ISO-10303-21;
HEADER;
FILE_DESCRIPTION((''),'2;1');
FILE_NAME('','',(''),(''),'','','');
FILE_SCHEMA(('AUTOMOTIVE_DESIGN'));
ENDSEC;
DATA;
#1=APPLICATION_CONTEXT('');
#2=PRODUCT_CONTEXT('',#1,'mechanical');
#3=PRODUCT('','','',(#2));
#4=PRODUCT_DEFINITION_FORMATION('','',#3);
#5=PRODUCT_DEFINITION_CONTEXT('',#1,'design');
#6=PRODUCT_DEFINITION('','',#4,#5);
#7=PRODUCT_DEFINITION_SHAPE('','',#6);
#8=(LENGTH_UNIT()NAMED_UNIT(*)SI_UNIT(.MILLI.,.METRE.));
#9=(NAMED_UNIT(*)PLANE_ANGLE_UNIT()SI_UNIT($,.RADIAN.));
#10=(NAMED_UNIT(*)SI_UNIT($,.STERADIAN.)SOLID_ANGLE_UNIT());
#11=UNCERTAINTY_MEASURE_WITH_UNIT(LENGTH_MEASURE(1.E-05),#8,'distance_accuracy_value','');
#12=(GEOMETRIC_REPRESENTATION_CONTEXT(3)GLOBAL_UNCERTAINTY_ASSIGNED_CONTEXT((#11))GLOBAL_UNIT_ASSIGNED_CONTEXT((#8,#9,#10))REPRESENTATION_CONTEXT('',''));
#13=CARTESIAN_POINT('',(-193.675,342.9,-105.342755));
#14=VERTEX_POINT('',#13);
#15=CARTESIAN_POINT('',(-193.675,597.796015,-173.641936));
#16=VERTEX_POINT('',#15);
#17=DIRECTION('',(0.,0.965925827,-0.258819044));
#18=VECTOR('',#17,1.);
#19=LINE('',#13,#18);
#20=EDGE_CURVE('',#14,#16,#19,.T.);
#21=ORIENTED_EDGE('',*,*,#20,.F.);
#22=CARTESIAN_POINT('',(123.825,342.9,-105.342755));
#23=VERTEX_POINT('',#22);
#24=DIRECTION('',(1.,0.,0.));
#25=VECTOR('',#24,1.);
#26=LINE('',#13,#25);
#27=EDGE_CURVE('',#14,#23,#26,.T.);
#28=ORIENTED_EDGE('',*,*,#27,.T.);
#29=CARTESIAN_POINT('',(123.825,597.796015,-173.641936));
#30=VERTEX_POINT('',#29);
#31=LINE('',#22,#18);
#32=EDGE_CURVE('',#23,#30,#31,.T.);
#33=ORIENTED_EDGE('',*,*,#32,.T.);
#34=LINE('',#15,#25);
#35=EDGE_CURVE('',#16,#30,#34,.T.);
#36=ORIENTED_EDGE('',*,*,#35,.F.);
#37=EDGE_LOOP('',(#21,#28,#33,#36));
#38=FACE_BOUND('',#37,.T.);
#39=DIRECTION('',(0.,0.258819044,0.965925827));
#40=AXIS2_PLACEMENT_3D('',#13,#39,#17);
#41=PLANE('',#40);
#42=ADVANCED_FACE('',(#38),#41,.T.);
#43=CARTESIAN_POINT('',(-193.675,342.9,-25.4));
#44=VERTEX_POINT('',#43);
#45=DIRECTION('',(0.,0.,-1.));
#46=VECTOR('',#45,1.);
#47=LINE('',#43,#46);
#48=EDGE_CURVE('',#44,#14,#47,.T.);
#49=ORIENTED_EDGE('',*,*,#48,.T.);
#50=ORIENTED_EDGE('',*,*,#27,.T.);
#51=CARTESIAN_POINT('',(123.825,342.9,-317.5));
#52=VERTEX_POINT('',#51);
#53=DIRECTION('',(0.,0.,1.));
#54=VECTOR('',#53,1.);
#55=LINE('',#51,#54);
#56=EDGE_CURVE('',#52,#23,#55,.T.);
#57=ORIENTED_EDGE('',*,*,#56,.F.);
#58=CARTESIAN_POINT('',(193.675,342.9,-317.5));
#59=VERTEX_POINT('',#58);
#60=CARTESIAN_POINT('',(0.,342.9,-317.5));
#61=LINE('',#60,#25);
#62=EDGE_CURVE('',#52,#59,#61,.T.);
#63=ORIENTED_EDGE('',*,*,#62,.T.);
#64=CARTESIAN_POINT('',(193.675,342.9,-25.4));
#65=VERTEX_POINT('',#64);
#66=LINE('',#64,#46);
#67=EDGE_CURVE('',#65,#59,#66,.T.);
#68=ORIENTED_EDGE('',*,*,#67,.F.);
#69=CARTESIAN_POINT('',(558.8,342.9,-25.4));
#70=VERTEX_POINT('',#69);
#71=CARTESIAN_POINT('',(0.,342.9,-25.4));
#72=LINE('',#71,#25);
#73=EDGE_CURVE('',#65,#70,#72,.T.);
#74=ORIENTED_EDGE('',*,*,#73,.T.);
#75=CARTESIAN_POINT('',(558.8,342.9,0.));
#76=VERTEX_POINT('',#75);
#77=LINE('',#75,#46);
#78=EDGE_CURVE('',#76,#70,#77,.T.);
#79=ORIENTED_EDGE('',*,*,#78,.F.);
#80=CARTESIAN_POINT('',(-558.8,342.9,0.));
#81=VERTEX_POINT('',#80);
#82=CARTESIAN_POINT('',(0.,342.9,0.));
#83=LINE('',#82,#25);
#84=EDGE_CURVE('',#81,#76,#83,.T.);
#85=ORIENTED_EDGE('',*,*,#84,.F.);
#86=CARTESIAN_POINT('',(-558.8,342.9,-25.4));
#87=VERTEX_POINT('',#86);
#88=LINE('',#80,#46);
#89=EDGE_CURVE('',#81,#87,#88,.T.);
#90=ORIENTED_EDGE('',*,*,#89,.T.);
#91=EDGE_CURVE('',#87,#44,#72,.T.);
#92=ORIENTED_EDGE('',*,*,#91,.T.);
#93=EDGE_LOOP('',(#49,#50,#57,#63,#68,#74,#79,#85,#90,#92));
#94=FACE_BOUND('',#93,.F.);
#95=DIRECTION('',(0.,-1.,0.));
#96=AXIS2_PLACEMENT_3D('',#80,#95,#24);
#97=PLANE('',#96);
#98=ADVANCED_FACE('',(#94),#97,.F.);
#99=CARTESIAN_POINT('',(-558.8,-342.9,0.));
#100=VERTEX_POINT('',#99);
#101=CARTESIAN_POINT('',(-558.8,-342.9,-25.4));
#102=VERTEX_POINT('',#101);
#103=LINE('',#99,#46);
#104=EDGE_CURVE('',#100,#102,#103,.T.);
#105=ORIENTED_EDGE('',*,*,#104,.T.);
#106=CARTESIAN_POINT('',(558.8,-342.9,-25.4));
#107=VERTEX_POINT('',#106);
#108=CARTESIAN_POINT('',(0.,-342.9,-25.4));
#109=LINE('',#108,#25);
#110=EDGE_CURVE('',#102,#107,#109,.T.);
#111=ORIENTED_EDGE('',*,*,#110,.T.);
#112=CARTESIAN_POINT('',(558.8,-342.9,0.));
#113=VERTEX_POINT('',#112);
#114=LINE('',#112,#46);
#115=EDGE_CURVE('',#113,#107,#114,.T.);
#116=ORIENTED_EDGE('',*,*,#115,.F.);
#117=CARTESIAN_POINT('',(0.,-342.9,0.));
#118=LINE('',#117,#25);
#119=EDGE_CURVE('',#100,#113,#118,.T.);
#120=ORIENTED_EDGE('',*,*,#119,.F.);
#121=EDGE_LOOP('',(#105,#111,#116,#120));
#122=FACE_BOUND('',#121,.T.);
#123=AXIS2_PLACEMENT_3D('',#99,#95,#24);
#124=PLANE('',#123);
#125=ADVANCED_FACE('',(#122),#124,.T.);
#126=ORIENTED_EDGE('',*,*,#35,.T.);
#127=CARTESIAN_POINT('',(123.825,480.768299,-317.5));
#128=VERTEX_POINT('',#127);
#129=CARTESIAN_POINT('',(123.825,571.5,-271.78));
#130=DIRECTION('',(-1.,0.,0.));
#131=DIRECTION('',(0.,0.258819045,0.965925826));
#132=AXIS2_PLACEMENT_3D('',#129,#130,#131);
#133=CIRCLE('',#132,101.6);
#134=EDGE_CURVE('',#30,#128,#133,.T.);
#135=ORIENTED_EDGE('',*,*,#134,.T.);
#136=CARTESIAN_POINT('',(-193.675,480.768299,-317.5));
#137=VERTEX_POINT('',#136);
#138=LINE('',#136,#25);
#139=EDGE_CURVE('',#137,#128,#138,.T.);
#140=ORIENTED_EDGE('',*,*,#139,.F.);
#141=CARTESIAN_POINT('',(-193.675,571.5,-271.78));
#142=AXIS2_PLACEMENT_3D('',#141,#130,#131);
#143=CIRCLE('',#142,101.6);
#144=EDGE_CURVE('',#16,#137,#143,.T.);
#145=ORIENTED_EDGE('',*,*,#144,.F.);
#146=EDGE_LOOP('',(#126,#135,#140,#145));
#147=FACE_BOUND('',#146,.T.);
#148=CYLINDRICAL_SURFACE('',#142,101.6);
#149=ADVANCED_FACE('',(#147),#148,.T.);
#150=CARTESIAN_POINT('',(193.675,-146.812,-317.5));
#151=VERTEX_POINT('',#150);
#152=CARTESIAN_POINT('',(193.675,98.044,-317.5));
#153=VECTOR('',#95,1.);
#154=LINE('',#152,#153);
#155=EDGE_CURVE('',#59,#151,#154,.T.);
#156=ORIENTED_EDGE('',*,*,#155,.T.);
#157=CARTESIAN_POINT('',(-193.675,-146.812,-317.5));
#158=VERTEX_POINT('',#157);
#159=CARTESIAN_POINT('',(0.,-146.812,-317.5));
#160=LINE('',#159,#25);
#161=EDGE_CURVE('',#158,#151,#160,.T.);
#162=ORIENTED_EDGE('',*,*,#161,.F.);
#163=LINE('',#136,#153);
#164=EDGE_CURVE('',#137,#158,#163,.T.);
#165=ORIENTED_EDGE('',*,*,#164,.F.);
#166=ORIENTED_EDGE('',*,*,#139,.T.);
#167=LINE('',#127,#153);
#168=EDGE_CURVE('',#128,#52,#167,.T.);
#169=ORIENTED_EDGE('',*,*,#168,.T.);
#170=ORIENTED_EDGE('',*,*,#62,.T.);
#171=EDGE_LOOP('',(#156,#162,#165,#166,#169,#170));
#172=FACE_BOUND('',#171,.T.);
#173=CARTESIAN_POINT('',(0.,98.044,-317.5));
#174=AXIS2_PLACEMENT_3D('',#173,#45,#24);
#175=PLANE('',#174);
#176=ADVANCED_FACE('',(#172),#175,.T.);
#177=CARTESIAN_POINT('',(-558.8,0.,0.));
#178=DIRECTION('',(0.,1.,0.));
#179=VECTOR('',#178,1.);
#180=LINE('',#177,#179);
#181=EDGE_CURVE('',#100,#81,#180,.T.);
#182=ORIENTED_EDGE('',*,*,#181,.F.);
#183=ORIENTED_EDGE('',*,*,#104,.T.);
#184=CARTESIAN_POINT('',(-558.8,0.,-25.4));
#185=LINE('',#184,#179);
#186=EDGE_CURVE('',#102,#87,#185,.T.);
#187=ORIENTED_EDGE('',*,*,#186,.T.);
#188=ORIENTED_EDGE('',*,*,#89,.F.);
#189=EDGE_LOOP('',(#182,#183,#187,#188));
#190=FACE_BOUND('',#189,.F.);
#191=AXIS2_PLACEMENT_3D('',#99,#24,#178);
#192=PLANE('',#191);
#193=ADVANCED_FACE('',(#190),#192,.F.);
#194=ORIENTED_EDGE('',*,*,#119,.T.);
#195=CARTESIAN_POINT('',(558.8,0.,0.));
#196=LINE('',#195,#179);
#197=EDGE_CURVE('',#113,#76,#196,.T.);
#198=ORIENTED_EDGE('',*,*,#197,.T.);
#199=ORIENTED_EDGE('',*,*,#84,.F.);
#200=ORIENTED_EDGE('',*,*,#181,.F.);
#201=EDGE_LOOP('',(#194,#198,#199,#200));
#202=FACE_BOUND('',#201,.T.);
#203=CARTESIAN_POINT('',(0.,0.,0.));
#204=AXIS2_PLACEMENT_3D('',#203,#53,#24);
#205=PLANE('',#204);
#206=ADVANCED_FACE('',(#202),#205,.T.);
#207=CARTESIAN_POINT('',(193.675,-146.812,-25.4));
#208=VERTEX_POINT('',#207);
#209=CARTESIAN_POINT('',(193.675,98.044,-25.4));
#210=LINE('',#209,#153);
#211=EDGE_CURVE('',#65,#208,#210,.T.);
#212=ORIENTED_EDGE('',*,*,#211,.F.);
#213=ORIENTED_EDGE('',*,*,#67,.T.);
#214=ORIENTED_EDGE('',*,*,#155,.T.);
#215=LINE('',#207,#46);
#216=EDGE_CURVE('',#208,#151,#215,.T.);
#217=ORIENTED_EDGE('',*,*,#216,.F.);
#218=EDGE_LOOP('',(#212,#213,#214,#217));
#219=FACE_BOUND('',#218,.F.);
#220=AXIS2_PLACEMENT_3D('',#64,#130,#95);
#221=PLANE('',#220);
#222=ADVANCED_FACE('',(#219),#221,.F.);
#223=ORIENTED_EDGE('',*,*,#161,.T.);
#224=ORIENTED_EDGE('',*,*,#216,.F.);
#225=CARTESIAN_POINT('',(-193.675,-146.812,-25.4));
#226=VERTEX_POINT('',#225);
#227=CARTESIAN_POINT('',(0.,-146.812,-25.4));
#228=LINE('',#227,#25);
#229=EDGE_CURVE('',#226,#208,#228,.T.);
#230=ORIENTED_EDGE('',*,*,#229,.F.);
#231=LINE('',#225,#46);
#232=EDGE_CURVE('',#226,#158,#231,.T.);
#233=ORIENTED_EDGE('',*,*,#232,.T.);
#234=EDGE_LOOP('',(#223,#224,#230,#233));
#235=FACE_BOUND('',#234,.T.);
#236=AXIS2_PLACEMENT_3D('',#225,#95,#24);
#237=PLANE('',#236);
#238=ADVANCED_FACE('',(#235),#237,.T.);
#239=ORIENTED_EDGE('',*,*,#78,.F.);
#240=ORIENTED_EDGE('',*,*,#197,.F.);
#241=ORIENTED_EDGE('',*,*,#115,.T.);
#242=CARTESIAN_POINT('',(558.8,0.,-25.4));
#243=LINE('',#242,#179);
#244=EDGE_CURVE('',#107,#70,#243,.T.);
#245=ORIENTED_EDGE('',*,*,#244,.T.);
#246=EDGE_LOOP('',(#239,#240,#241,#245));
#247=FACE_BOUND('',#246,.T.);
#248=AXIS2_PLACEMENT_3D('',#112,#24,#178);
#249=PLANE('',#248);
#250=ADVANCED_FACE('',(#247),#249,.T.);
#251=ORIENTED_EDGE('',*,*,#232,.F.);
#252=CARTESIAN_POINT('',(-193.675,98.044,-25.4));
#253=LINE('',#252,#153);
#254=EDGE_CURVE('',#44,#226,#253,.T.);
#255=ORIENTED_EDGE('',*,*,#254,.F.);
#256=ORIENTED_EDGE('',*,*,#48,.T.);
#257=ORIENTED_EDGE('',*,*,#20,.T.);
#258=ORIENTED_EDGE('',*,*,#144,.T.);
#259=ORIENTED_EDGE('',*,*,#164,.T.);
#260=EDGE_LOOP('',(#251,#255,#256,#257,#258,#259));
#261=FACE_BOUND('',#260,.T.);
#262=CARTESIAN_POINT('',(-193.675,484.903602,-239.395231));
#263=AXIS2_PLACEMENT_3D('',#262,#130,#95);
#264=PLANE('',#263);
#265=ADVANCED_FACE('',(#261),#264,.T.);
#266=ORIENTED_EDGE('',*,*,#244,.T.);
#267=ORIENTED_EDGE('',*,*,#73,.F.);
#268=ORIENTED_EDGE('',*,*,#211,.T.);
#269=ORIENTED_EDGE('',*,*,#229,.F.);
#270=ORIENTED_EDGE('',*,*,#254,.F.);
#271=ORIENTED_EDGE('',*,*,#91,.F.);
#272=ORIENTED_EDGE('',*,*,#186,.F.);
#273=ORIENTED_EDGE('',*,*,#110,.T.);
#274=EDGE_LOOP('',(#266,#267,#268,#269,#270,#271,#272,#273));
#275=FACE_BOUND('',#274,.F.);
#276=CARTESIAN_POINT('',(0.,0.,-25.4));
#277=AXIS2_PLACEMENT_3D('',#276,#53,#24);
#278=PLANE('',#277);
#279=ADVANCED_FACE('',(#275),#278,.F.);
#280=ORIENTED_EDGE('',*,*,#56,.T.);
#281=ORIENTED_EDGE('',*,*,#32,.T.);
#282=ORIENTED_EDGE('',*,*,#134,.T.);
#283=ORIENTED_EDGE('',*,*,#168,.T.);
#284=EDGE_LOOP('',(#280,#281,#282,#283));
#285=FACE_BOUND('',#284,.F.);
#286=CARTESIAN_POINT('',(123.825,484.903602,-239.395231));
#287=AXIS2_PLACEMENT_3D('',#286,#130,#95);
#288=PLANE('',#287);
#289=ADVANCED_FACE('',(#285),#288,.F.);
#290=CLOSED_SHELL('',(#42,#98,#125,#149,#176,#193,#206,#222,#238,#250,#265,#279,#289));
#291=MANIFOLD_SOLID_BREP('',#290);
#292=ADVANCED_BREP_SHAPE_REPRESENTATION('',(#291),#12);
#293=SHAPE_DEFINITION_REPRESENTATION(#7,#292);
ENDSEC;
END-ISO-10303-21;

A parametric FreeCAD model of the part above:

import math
import FreeCAD as App
import Part
import Sketcher

V = App.Vector
Q = App.Units.Quantity

doc = App.newDocument("Part")
body = doc.addObject("PartDesign::Body", "Body")

sketch1 = doc.addObject("Sketcher::SketchObject", "Sketch")
body.addObject(sketch1)
sketch1.AttachmentSupport = (doc.XY_Plane, [""])
sketch1.MapMode = "FlatFace"
sketch1.addGeometry([
    Part.LineSegment(V(-558.8, 342.9, 0), V(-558.8, -342.9, 0)),
    Part.LineSegment(V(-558.8, -342.9, 0), V(558.8, -342.9, 0)),
    Part.LineSegment(V(558.8, -342.9, 0), V(558.8, 342.9, 0)),
    Part.LineSegment(V(558.8, 342.9, 0), V(-558.8, 342.9, 0)),
], False)
sketch1.addConstraint([
    Sketcher.Constraint("Coincident", 0, 2, 1, 1),
    Sketcher.Constraint("Coincident", 1, 2, 2, 1),
    Sketcher.Constraint("Coincident", 2, 2, 3, 1),
    Sketcher.Constraint("Coincident", 3, 2, 0, 1),
    Sketcher.Constraint("Vertical", 0),
    Sketcher.Constraint("Horizontal", 1),
    Sketcher.Constraint("Vertical", 2),
    Sketcher.Constraint("Horizontal", 3),
    Sketcher.Constraint("Symmetric", 0, 2, 2, 2, -1, 1),
    Sketcher.Constraint("DistanceX", 1, 1, 1, 2, Q("44 in")),
    Sketcher.Constraint("DistanceY", 0, 2, 0, 1, Q("27 in")),
])
pad1 = doc.addObject("PartDesign::Pad", "Pad")
body.addObject(pad1)
pad1.Profile = sketch1
pad1.Length = Q("1 in")
pad1.Reversed = True

sketch2 = doc.addObject("Sketcher::SketchObject", "Sketch001")
body.addObject(sketch2)
sketch2.AttachmentSupport = (doc.XY_Plane, [""])
sketch2.MapMode = "FlatFace"
sketch2.AttachmentOffset = App.Placement(V(0, 0, -1 * 25.4), App.Rotation())
sketch2.addGeometry([
    Part.LineSegment(V(-193.675, -146.812, 0), V(-193.675, 342.9, 0)),
    Part.LineSegment(V(-193.675, 342.9, 0), V(193.675, 342.9, 0)),
    Part.LineSegment(V(193.675, 342.9, 0), V(193.675, -146.812, 0)),
    Part.LineSegment(V(193.675, -146.812, 0), V(-193.675, -146.812, 0)),
], False)
sketch2.addConstraint([
    Sketcher.Constraint("Coincident", 0, 2, 1, 1),
    Sketcher.Constraint("Coincident", 1, 2, 2, 1),
    Sketcher.Constraint("Coincident", 2, 2, 3, 1),
    Sketcher.Constraint("Coincident", 3, 2, 0, 1),
    Sketcher.Constraint("Vertical", 0),
    Sketcher.Constraint("Horizontal", 1),
    Sketcher.Constraint("Vertical", 2),
    Sketcher.Constraint("Horizontal", 3),
    Sketcher.Constraint("DistanceX", 1, 1, 1, 2, Q("15.25 in")),
    Sketcher.Constraint("DistanceY", 0, 1, 0, 2, Q("19.28 in")),
    Sketcher.Constraint("DistanceY", -1, 1, 0, 2, Q("13.5 in")),
    Sketcher.Constraint("DistanceX", 0, 2, -1, 1, Q("7.625 in")),
])
pad2 = doc.addObject("PartDesign::Pad", "Pad001")
body.addObject(pad2)
pad2.Profile = sketch2
pad2.Length = Q("11.5 in")
pad2.Reversed = True

sketch3 = doc.addObject("Sketcher::SketchObject", "Sketch002")
body.addObject(sketch3)
sketch3.AttachmentSupport = (doc.YZ_Plane, [""])
sketch3.MapMode = "FlatFace"
sketch3.AttachmentOffset = App.Placement(V(0, 0, -7.625 * 25.4), App.Rotation())
sketch3.addGeometry([
    Part.LineSegment(V(342.9, -105.342755, 0), V(597.796015, -173.641936, 0)),
    Part.ArcOfCircle(Part.Circle(V(571.5, -271.78, 0), V(0, 0, 1), 101.6), math.radians(-153.256316), math.radians(75)),
    Part.LineSegment(V(480.768299, -317.5, 0), V(342.9, -317.5, 0)),
    Part.LineSegment(V(342.9, -317.5, 0), V(342.9, -105.342755, 0)),
], False)
sketch3.addConstraint([
    Sketcher.Constraint("Tangent", 0, 2, 1, 2),
    Sketcher.Constraint("Coincident", 1, 1, 2, 1),
    Sketcher.Constraint("Coincident", 2, 2, 3, 1),
    Sketcher.Constraint("Coincident", 3, 2, 0, 1),
    Sketcher.Constraint("Horizontal", 2),
    Sketcher.Constraint("Vertical", 3),
    Sketcher.Constraint("Radius", 1, Q("4 in")),
    Sketcher.Constraint("Angle", 0, Q("-15 deg")),
    Sketcher.Constraint("DistanceX", 2, 2, 1, 3, Q("9 in")),
    Sketcher.Constraint("DistanceX", -1, 1, 1, 3, Q("22.5 in")),
    Sketcher.Constraint("DistanceY", 1, 3, -1, 1, Q("10.7 in")),
    Sketcher.Constraint("DistanceY", 1, 1, -1, 1, Q("12.5 in")),
])
pad3 = doc.addObject("PartDesign::Pad", "Pad002")
body.addObject(pad3)
pad3.Profile = sketch3
pad3.Length = Q("12.5 in")

doc.recompute()
